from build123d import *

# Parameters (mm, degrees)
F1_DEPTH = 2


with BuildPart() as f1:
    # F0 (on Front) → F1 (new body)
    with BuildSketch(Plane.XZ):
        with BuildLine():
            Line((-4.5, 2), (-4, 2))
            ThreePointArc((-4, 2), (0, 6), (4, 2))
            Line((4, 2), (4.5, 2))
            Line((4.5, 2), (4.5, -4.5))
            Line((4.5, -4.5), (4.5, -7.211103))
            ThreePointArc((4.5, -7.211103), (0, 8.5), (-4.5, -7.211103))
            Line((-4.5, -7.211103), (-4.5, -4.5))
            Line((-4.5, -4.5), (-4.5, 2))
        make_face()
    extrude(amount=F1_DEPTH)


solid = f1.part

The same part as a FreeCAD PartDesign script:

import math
import FreeCAD as App
import Part
import Sketcher
from FreeCAD import Vector
Q = App.Units.Quantity

doc = App.newDocument("Part")
body = doc.addObject("PartDesign::Body", "Body")

sketch1 = body.newObject("Sketcher::SketchObject", "Sketch")
sketch1.AttachmentSupport = (doc.getObject("XZ_Plane"), [""])
sketch1.MapMode = "FlatFace"
sketch1.addGeometry([
    Part.LineSegment(Vector(-4.5, 2, 0), Vector(-4, 2, 0)),
    Part.ArcOfCircle(Part.Circle(Vector(0, 2, 0), Vector(0, 0, 1), 4), math.radians(0), math.radians(180)),
    Part.LineSegment(Vector(4, 2, 0), Vector(4.5, 2, 0)),
    Part.LineSegment(Vector(4.5, 2, 0), Vector(4.5, -7.2, 0)),
    Part.ArcOfCircle(Part.Circle(Vector(0, 0, 0), Vector(0, 0, 1), 8.5), math.radians(-58), math.radians(238)),
    Part.LineSegment(Vector(-4.5, -7.2, 0), Vector(-4.5, 2, 0)),
], False)
sketch1.addConstraint([
    Sketcher.Constraint("Coincident", 0, 2, 1, 2),
    Sketcher.Constraint("Coincident", 1, 1, 2, 1),
    Sketcher.Constraint("Coincident", 2, 2, 3, 1),
    Sketcher.Constraint("Coincident", 3, 2, 4, 1),
    Sketcher.Constraint("Coincident", 4, 2, 5, 1),
    Sketcher.Constraint("Coincident", 5, 2, 0, 1),
    Sketcher.Constraint("Horizontal", 0),
    Sketcher.Constraint("Horizontal", 2),
    Sketcher.Constraint("Vertical", 3),
    Sketcher.Constraint("Vertical", 5),
    Sketcher.Constraint("Coincident", 4, 3, -1, 1),
    Sketcher.Constraint("Symmetric", 0, 2, 1, 1, -2),
    Sketcher.Constraint("Horizontal", 1, 3, 0, 2),
    Sketcher.Constraint("Horizontal", 3, 2, 4, 2),
    Sketcher.Constraint("Radius", 1, Q("4 mm")),
    Sketcher.Constraint("Radius", 4, Q("8.5 mm")),
    Sketcher.Constraint("DistanceX", 0, 1, 0, 2, Q("0.5 mm")),
    Sketcher.Constraint("DistanceY", -1, 1, 1, 3, Q("2 mm")),
])
pad1 = body.newObject("PartDesign::Pad", "Pad")
pad1.Profile = sketch1
pad1.Length = 2

doc.recompute()
